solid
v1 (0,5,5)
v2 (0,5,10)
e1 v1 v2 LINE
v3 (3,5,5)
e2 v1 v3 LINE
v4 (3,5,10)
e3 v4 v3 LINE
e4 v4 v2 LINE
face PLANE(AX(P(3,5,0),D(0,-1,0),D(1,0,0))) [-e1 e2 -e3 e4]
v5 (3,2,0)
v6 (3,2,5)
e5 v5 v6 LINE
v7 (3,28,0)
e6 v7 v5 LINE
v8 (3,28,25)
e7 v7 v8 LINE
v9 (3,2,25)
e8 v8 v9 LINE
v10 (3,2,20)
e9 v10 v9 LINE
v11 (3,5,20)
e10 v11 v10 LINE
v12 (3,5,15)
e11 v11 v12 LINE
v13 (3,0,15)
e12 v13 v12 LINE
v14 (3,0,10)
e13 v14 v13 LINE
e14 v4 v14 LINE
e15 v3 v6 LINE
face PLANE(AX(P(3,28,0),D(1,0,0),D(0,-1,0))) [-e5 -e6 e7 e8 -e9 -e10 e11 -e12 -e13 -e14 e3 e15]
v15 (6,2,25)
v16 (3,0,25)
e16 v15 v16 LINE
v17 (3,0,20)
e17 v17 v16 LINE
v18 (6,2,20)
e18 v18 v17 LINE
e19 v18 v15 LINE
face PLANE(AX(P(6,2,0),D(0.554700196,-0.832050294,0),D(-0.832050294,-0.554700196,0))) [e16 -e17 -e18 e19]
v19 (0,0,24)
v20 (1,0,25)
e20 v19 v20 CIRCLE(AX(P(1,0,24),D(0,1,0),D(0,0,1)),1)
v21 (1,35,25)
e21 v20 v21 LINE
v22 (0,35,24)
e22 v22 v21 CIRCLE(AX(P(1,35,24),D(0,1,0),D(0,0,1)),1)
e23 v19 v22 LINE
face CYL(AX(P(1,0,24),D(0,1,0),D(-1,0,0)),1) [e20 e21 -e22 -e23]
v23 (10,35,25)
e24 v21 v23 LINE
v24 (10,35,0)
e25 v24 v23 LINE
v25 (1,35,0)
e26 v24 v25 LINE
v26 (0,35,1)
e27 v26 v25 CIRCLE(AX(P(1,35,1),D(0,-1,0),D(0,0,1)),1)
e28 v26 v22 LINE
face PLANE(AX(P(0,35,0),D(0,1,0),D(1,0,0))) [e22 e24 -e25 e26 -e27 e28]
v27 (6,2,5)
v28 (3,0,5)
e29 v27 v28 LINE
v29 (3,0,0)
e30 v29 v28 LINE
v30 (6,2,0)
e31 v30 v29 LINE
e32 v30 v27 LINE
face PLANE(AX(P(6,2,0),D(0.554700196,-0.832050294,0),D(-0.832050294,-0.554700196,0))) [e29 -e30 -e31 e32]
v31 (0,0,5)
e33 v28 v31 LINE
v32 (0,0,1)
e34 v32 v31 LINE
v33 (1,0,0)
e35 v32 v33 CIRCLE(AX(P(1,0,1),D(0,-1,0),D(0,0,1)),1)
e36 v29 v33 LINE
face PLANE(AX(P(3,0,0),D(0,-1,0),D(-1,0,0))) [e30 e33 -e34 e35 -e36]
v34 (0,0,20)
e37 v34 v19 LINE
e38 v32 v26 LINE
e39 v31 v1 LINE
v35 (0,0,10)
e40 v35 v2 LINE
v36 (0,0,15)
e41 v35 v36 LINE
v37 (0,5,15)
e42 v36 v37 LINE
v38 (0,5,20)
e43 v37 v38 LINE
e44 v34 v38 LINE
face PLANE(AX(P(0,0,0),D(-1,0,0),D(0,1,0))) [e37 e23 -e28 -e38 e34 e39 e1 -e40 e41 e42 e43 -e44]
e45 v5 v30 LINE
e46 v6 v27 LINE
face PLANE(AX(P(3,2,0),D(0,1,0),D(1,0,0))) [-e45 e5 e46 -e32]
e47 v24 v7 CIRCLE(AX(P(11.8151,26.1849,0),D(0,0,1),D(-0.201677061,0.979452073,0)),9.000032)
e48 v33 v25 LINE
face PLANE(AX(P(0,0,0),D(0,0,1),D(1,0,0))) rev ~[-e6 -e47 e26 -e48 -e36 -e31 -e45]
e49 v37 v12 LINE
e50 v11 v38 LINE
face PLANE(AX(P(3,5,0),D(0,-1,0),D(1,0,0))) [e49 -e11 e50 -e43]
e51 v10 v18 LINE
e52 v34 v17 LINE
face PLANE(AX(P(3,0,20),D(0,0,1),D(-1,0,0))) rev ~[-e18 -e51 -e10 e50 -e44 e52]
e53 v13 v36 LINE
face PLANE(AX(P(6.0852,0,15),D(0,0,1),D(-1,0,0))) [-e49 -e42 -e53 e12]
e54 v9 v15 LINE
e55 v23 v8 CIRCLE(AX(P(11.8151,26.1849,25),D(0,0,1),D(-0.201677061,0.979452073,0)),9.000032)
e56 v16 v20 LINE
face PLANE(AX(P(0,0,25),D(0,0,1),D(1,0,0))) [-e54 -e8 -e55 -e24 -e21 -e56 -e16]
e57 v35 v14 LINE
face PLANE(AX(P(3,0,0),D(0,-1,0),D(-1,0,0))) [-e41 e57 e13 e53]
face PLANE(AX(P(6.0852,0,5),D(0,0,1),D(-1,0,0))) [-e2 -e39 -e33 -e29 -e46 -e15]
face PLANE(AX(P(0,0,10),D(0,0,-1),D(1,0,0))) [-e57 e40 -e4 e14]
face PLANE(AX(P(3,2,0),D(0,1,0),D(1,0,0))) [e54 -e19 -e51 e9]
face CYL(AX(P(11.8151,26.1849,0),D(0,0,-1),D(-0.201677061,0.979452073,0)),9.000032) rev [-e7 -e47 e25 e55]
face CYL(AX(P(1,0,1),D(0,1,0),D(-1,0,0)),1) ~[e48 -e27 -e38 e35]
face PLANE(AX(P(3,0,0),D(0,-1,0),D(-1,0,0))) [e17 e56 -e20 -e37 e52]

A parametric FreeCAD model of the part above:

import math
import FreeCAD as App
import Part
import Sketcher

V = App.Vector


def edges_at(feature, points):
    """Names of the edges that pass closest to the given points."""
    edges = feature.Shape.Edges
    near = lambda p: min(range(len(edges)), key=lambda i: edges[i].distToShape(Part.Vertex(*p))[0])
    return sorted({f"Edge{near(p) + 1}" for p in points})

doc = App.newDocument("Part")
body = doc.addObject("PartDesign::Body", "Body")

# Sketch on XY plane
sketch1 = body.newObject("Sketcher::SketchObject", "Sketch")
sketch1.AttachmentSupport = (doc.getObject("XY_Plane"), [""])
sketch1.MapMode = "FlatFace"
sketch1.addGeometry(Part.LineSegment(V(0, 35, 0), V(0, 0, 0)), False)
sketch1.addGeometry(Part.LineSegment(V(0, 0, 0), V(3, 0, 0)), False)
sketch1.addGeometry(Part.LineSegment(V(3, 0, 0), V(6, 2, 0)), False)
sketch1.addGeometry(Part.LineSegment(V(6, 2, 0), V(3, 2, 0)), False)
sketch1.addGeometry(Part.LineSegment(V(3, 2, 0), V(3, 28, 0)), False)
sketch1.addGeometry(Part.ArcOfCircle(Part.Circle(V(11.8, 26.2, 0), V(0, 0, 1), 9), math.radians(102), math.radians(168)), False)
sketch1.addGeometry(Part.LineSegment(V(10, 35, 0), V(0, 35, 0)), False)
sketch1.addConstraint(Sketcher.Constraint("Coincident", 0, 2, 1, 1))
sketch1.addConstraint(Sketcher.Constraint("Coincident", 1, 2, 2, 1))
sketch1.addConstraint(Sketcher.Constraint("Coincident", 2, 2, 3, 1))
sketch1.addConstraint(Sketcher.Constraint("Coincident", 3, 2, 4, 1))
sketch1.addConstraint(Sketcher.Constraint("Coincident", 4, 2, 5, 2))
sketch1.addConstraint(Sketcher.Constraint("Coincident", 5, 1, 6, 1))
sketch1.addConstraint(Sketcher.Constraint("Coincident", 6, 2, 0, 1))
sketch1.addConstraint(Sketcher.Constraint("Vertical", 0))
sketch1.addConstraint(Sketcher.Constraint("Horizontal", 1))
sketch1.addConstraint(Sketcher.Constraint("Horizontal", 3))
sketch1.addConstraint(Sketcher.Constraint("Vertical", 4))
sketch1.addConstraint(Sketcher.Constraint("Horizontal", 6))
sketch1.addConstraint(Sketcher.Constraint("Coincident", 0, 2, -1, 1))
sketch1.addConstraint(Sketcher.Constraint("Vertical", 1, 2, 3, 2))
sketch1.addConstraint(Sketcher.Constraint("Equal", 1, 3))
sketch1.addConstraint(Sketcher.Constraint("Radius", 5, 9.0))
sketch1.addConstraint(Sketcher.Constraint("DistanceX", 1, 1, 1, 2, 3.0))
sketch1.addConstraint(Sketcher.Constraint("DistanceX", 4, 2, 5, 1, 7.0))
sketch1.addConstraint(Sketcher.Constraint("DistanceY", 4, 2, 5, 1, 7.0))
sketch1.addConstraint(Sketcher.Constraint("DistanceY", 0, 2, 0, 1, 35.0))
sketch1.addConstraint(Sketcher.Constraint("DistanceY", 4, 1, 4, 2, 26.0))
pad1 = body.newObject("PartDesign::Pad", "Pad")
pad1.Profile = sketch1
pad1.Length = 25
doc.recompute()

fillet = body.newObject("PartDesign::Fillet", "Fillet")
fillet.Base = (pad1, edges_at(pad1, [(0, 17.5, 25)]))
fillet.Radius = 1
doc.recompute()

fillet2 = body.newObject("PartDesign::Fillet", "Fillet001")
fillet2.Base = (fillet, edges_at(fillet, [(0, 17.5, 0)]))
fillet2.Radius = 1

# Sketch on XZ plane
sketch2 = body.newObject("Sketcher::SketchObject", "Sketch001")
sketch2.AttachmentSupport = (doc.getObject("XZ_Plane"), [""])
sketch2.MapMode = "FlatFace"
sketch2.addGeometry(Part.LineSegment(V(0, 20, 0), V(0, 15, 0)), False)
sketch2.addGeometry(Part.LineSegment(V(0, 15, 0), V(6, 15, 0)), False)
sketch2.addGeometry(Part.LineSegment(V(6, 15, 0), V(6, 20, 0)), False)
sketch2.addGeometry(Part.LineSegment(V(6, 20, 0), V(0, 20, 0)), False)
sketch2.addGeometry(Part.LineSegment(V(0, 10, 0), V(0, 5, 0)), False)
sketch2.addGeometry(Part.LineSegment(V(0, 5, 0), V(6, 5, 0)), False)
sketch2.addGeometry(Part.LineSegment(V(6, 5, 0), V(6, 10, 0)), False)
sketch2.addGeometry(Part.LineSegment(V(6, 10, 0), V(0, 10, 0)), False)
sketch2.addConstraint(Sketcher.Constraint("Coincident", 0, 2, 1, 1))
sketch2.addConstraint(Sketcher.Constraint("Coincident", 1, 2, 2, 1))
sketch2.addConstraint(Sketcher.Constraint("Coincident", 2, 2, 3, 1))
sketch2.addConstraint(Sketcher.Constraint("Coincident", 3, 2, 0, 1))
sketch2.addConstraint(Sketcher.Constraint("Coincident", 4, 2, 5, 1))
sketch2.addConstraint(Sketcher.Constraint("Coincident", 5, 2, 6, 1))
sketch2.addConstraint(Sketcher.Constraint("Coincident", 6, 2, 7, 1))
sketch2.addConstraint(Sketcher.Constraint("Coincident", 7, 2, 4, 1))
sketch2.addConstraint(Sketcher.Constraint("Vertical", 0))
sketch2.addConstraint(Sketcher.Constraint("Horizontal", 1))
sketch2.addConstraint(Sketcher.Constraint("Vertical", 2))
sketch2.addConstraint(Sketcher.Constraint("Horizontal", 3))
sketch2.addConstraint(Sketcher.Constraint("Vertical", 4))
sketch2.addConstraint(Sketcher.Constraint("Horizontal", 5))
sketch2.addConstraint(Sketcher.Constraint("Vertical", 6))
sketch2.addConstraint(Sketcher.Constraint("Horizontal", 7))
sketch2.addConstraint(Sketcher.Constraint("PointOnObject", 0, 2, -2))
sketch2.addConstraint(Sketcher.Constraint("PointOnObject", 4, 2, -2))
sketch2.addConstraint(Sketcher.Constraint("Vertical", 2, 2, 5, 2))
sketch2.addConstraint(Sketcher.Constraint("Equal", 2, 4))
sketch2.addConstraint(Sketcher.Constraint("DistanceY", 0, 2, 0, 1, 5.0))
sketch2.addConstraint(Sketcher.Constraint("DistanceY", -1, 1, 4, 2, 5.0))
sketch2.addConstraint(Sketcher.Constraint("DistanceY", 6, 2, 1, 2, 5.0))
sketch2.addConstraint(Sketcher.Constraint("DistanceX", 1, 1, 1, 2, 6.0852))
pocket1 = body.newObject("PartDesign::Pocket", "Pocket")
pocket1.Profile = sketch2
pocket1.Length = 5

# Sketch on XZ plane
sketch3 = body.newObject("Sketcher::SketchObject", "Sketch002")
sketch3.AttachmentSupport = (doc.getObject("XZ_Plane"), [""])
sketch3.MapMode = "FlatFace"
sketch3.AttachmentOffset = App.Placement(V(0, 0, -2), App.Rotation())
sketch3.addGeometry(Part.LineSegment(V(6, 15, 0), V(6, 10, 0)), False)
sketch3.addGeometry(Part.LineSegment(V(6, 10, 0), V(3, 10, 0)), False)
sketch3.addGeometry(Part.LineSegment(V(3, 10, 0), V(3, 15, 0)), False)
sketch3.addGeometry(Part.LineSegment(V(3, 15, 0), V(6, 15, 0)), False)
sketch3.addConstraint(Sketcher.Constraint("Coincident", 0, 2, 1, 1))
sketch3.addConstraint(Sketcher.Constraint("Coincident", 1, 2, 2, 1))
sketch3.addConstraint(Sketcher.Constraint("Coincident", 2, 2, 3, 1))
sketch3.addConstraint(Sketcher.Constraint("Coincident", 3, 2, 0, 1))
sketch3.addConstraint(Sketcher.Constraint("Vertical", 0))
sketch3.addConstraint(Sketcher.Constraint("Horizontal", 1))
sketch3.addConstraint(Sketcher.Constraint("Vertical", 2))
sketch3.addConstraint(Sketcher.Constraint("Horizontal", 3))
sketch3.addConstraint(Sketcher.Constraint("DistanceX", 1, 2, 1, 1, 3.0))
sketch3.addConstraint(Sketcher.Constraint("DistanceY", 0, 2, 0, 1, 5.0))
sketch3.addConstraint(Sketcher.Constraint("DistanceX", -1, 1, 0, 2, 6.0))
sketch3.addConstraint(Sketcher.Constraint("DistanceY", -1, 1, 0, 2, 10.0))
pocket2 = body.newObject("PartDesign::Pocket", "Pocket001")
pocket2.Profile = sketch3
pocket2.Length = 5
pocket2.Reversed = True

doc.recompute()
